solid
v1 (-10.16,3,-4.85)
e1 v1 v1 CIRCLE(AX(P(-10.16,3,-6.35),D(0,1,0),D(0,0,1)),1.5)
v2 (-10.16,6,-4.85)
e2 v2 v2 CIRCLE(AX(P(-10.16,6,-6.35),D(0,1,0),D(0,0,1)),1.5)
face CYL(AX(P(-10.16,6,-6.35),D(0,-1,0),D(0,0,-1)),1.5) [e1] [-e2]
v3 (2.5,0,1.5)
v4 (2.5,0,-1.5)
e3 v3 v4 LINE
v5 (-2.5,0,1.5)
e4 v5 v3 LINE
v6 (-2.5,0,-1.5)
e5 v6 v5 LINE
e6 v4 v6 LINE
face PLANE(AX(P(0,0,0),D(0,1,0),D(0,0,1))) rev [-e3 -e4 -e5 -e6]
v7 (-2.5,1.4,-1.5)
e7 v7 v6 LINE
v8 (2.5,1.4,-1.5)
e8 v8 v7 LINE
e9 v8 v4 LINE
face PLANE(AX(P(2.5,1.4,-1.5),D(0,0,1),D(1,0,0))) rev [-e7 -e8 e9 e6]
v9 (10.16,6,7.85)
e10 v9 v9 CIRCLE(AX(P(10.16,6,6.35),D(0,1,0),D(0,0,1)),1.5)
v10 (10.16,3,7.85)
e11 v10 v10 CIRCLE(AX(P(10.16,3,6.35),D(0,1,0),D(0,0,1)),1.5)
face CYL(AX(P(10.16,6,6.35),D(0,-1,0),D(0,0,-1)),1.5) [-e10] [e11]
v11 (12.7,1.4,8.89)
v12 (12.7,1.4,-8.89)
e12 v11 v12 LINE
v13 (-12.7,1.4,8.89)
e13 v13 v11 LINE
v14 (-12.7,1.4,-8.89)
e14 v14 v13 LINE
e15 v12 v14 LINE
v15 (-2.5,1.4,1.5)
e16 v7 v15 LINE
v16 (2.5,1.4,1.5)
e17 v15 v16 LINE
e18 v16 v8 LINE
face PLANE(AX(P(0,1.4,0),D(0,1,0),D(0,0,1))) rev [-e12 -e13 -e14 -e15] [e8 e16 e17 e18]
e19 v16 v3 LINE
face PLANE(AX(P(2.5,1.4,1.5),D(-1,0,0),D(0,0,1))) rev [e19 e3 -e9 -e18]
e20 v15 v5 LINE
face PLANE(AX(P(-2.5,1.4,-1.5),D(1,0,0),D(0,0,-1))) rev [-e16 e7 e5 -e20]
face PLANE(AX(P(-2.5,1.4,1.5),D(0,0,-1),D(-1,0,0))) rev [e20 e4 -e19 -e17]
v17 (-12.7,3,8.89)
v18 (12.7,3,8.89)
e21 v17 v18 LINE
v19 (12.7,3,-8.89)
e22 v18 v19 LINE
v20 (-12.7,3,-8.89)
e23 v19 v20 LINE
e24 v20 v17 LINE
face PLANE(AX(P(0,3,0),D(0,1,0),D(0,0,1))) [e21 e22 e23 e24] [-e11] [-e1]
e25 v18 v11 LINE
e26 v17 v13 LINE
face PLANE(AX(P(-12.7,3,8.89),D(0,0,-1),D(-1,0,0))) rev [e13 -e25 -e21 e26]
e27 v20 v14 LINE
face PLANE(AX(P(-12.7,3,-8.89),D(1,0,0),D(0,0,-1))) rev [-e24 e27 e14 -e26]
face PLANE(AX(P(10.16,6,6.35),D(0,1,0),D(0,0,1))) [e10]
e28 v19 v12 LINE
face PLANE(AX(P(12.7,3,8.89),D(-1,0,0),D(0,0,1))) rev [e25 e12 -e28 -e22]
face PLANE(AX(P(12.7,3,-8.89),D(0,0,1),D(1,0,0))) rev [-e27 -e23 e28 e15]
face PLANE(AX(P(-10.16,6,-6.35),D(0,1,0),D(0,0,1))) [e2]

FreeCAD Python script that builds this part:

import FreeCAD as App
import Part
import Sketcher
from FreeCAD import Vector
Q = App.Units.Quantity

doc = App.newDocument("Part")
params = doc.addObject("Spreadsheet::Sheet", "Params")
for row, (alias, value) in enumerate([
    ("sketch1_diameter", "3 mm"),
    ("pad1_length", "3 mm"),
    ("sketch2_diameter", "3 mm"),
    ("pad2_length", "3 mm"),
    ("sketch3_width", "25.4 mm"),
    ("sketch3_height", "17.78 mm"),
    ("pad3_length", "1.6 mm"),
    ("sketch4_width", "5 mm"),
    ("sketch4_height", "3 mm"),
    ("pad4_length", "1.4 mm"),
], start=1):
    params.set(f"A{row}", alias)
    params.set(f"B{row}", "=" + value)
    params.setAlias(f"B{row}", alias)

body = doc.addObject("PartDesign::Body", "Body")

# Sketch on XZ plane
sketch1 = doc.addObject("Sketcher::SketchObject", "Sketch")
body.addObject(sketch1)
sketch1.AttachmentSupport = (doc.XZ_Plane, [""])
sketch1.MapMode = "FlatFace"
sketch1.AttachmentOffset = App.Placement(Vector(0, 0, -3), App.Rotation())
sketch1.addGeometry(Part.Circle(Vector(-10.2, -6.3, 0), Vector(0, 0, 1), 1.5), False)
sketch1.addConstraint([
    Sketcher.Constraint("Diameter", 0, Q("3 mm")),
    Sketcher.Constraint("DistanceX", 0, 3, -1, 1, Q("10.16 mm")),
    Sketcher.Constraint("DistanceY", 0, 3, -1, 1, Q("6.35 mm")),
])
sketch1.setExpression("Constraints[0]", "Params.sketch1_diameter")
pad1 = doc.addObject("PartDesign::Pad", "Pad")
body.addObject(pad1)
pad1.Profile = sketch1
pad1.setExpression("Length", "Params.pad1_length")
pad1.Reversed = True
body2 = doc.addObject("PartDesign::Body", "Body001")

# Sketch on XZ plane
sketch2 = doc.addObject("Sketcher::SketchObject", "Sketch001")
body2.addObject(sketch2)
sketch2.AttachmentSupport = (doc.getObject("XZ_Plane001"), [""])
sketch2.MapMode = "FlatFace"
sketch2.AttachmentOffset = App.Placement(Vector(0, 0, -3), App.Rotation())
sketch2.addGeometry(Part.Circle(Vector(10.2, 6.3, 0), Vector(0, 0, 1), 1.5), False)
sketch2.addConstraint([
    Sketcher.Constraint("Diameter", 0, Q("3 mm")),
    Sketcher.Constraint("DistanceX", -1, 1, 0, 3, Q("10.16 mm")),
    Sketcher.Constraint("DistanceY", -1, 1, 0, 3, Q("6.35 mm")),
])
sketch2.setExpression("Constraints[0]", "Params.sketch2_diameter")
pad2 = doc.addObject("PartDesign::Pad", "Pad001")
body2.addObject(pad2)
pad2.Profile = sketch2
pad2.setExpression("Length", "Params.pad2_length")
pad2.Reversed = True
body.AllowCompound = True
doc.recompute()

boolean = doc.addObject("PartDesign::Boolean", "Boolean")
body.addObject(boolean)
boolean.Type = "Fuse"
boolean.addObjects([body2])

# Sketch on XZ plane
sketch3 = doc.addObject("Sketcher::SketchObject", "Sketch002")
body.addObject(sketch3)
sketch3.AttachmentSupport = (doc.XZ_Plane, [""])
sketch3.MapMode = "FlatFace"
sketch3.AttachmentOffset = App.Placement(Vector(0, 0, -1.4), App.Rotation())
sketch3.addGeometry([
    Part.LineSegment(Vector(-13, -9, 0), Vector(-13, 9, 0)),
    Part.LineSegment(Vector(-13, 9, 0), Vector(13, 9, 0)),
    Part.LineSegment(Vector(13, 9, 0), Vector(13, -9, 0)),
    Part.LineSegment(Vector(13, -9, 0), Vector(-13, -9, 0)),
], False)
sketch3.addConstraint([
    Sketcher.Constraint("Coincident", 0, 2, 1, 1),
    Sketcher.Constraint("Coincident", 1, 2, 2, 1),
    Sketcher.Constraint("Coincident", 2, 2, 3, 1),
    Sketcher.Constraint("Coincident", 3, 2, 0, 1),
    Sketcher.Constraint("Vertical", 0),
    Sketcher.Constraint("Horizontal", 1),
    Sketcher.Constraint("Vertical", 2),
    Sketcher.Constraint("Horizontal", 3),
    Sketcher.Constraint("Symmetric", 0, 2, 2, 2, -1, 1),
    Sketcher.Constraint("DistanceX", 1, 1, 1, 2, Q("25.4 mm")),
    Sketcher.Constraint("DistanceY", 0, 1, 0, 2, Q("17.78 mm")),
])
sketch3.setExpression("Constraints[9]", "Params.sketch3_width")
sketch3.setExpression("Constraints[10]", "Params.sketch3_height")
pad3 = doc.addObject("PartDesign::Pad", "Pad002")
body.addObject(pad3)
pad3.Profile = sketch3
pad3.setExpression("Length", "Params.pad3_length")
pad3.Reversed = True

# Sketch on XZ plane
sketch4 = doc.addObject("Sketcher::SketchObject", "Sketch003")
body.addObject(sketch4)
sketch4.AttachmentSupport = (doc.XZ_Plane, [""])
sketch4.MapMode = "FlatFace"
sketch4.addGeometry([
    Part.LineSegment(Vector(-2.5, -1.5, 0), Vector(-2.5, 1.5, 0)),
    Part.LineSegment(Vector(-2.5, 1.5, 0), Vector(2.5, 1.5, 0)),
    Part.LineSegment(Vector(2.5, 1.5, 0), Vector(2.5, -1.5, 0)),
    Part.LineSegment(Vector(2.5, -1.5, 0), Vector(-2.5, -1.5, 0)),
], False)
sketch4.addConstraint([
    Sketcher.Constraint("Coincident", 0, 2, 1, 1),
    Sketcher.Constraint("Coincident", 1, 2, 2, 1),
    Sketcher.Constraint("Coincident", 2, 2, 3, 1),
    Sketcher.Constraint("Coincident", 3, 2, 0, 1),
    Sketcher.Constraint("Vertical", 0),
    Sketcher.Constraint("Horizontal", 1),
    Sketcher.Constraint("Vertical", 2),
    Sketcher.Constraint("Horizontal", 3),
    Sketcher.Constraint("Symmetric", 0, 2, 2, 2, -1, 1),
    Sketcher.Constraint("DistanceX", 1, 1, 1, 2, Q("5 mm")),
    Sketcher.Constraint("DistanceY", 0, 1, 0, 2, Q("3 mm")),
])
sketch4.setExpression("Constraints[9]", "Params.sketch4_width")
sketch4.setExpression("Constraints[10]", "Params.sketch4_height")
pad4 = doc.addObject("PartDesign::Pad", "Pad003")
body.addObject(pad4)
pad4.Profile = sketch4
pad4.setExpression("Length", "Params.pad4_length")
pad4.Reversed = True

doc.recompute()
